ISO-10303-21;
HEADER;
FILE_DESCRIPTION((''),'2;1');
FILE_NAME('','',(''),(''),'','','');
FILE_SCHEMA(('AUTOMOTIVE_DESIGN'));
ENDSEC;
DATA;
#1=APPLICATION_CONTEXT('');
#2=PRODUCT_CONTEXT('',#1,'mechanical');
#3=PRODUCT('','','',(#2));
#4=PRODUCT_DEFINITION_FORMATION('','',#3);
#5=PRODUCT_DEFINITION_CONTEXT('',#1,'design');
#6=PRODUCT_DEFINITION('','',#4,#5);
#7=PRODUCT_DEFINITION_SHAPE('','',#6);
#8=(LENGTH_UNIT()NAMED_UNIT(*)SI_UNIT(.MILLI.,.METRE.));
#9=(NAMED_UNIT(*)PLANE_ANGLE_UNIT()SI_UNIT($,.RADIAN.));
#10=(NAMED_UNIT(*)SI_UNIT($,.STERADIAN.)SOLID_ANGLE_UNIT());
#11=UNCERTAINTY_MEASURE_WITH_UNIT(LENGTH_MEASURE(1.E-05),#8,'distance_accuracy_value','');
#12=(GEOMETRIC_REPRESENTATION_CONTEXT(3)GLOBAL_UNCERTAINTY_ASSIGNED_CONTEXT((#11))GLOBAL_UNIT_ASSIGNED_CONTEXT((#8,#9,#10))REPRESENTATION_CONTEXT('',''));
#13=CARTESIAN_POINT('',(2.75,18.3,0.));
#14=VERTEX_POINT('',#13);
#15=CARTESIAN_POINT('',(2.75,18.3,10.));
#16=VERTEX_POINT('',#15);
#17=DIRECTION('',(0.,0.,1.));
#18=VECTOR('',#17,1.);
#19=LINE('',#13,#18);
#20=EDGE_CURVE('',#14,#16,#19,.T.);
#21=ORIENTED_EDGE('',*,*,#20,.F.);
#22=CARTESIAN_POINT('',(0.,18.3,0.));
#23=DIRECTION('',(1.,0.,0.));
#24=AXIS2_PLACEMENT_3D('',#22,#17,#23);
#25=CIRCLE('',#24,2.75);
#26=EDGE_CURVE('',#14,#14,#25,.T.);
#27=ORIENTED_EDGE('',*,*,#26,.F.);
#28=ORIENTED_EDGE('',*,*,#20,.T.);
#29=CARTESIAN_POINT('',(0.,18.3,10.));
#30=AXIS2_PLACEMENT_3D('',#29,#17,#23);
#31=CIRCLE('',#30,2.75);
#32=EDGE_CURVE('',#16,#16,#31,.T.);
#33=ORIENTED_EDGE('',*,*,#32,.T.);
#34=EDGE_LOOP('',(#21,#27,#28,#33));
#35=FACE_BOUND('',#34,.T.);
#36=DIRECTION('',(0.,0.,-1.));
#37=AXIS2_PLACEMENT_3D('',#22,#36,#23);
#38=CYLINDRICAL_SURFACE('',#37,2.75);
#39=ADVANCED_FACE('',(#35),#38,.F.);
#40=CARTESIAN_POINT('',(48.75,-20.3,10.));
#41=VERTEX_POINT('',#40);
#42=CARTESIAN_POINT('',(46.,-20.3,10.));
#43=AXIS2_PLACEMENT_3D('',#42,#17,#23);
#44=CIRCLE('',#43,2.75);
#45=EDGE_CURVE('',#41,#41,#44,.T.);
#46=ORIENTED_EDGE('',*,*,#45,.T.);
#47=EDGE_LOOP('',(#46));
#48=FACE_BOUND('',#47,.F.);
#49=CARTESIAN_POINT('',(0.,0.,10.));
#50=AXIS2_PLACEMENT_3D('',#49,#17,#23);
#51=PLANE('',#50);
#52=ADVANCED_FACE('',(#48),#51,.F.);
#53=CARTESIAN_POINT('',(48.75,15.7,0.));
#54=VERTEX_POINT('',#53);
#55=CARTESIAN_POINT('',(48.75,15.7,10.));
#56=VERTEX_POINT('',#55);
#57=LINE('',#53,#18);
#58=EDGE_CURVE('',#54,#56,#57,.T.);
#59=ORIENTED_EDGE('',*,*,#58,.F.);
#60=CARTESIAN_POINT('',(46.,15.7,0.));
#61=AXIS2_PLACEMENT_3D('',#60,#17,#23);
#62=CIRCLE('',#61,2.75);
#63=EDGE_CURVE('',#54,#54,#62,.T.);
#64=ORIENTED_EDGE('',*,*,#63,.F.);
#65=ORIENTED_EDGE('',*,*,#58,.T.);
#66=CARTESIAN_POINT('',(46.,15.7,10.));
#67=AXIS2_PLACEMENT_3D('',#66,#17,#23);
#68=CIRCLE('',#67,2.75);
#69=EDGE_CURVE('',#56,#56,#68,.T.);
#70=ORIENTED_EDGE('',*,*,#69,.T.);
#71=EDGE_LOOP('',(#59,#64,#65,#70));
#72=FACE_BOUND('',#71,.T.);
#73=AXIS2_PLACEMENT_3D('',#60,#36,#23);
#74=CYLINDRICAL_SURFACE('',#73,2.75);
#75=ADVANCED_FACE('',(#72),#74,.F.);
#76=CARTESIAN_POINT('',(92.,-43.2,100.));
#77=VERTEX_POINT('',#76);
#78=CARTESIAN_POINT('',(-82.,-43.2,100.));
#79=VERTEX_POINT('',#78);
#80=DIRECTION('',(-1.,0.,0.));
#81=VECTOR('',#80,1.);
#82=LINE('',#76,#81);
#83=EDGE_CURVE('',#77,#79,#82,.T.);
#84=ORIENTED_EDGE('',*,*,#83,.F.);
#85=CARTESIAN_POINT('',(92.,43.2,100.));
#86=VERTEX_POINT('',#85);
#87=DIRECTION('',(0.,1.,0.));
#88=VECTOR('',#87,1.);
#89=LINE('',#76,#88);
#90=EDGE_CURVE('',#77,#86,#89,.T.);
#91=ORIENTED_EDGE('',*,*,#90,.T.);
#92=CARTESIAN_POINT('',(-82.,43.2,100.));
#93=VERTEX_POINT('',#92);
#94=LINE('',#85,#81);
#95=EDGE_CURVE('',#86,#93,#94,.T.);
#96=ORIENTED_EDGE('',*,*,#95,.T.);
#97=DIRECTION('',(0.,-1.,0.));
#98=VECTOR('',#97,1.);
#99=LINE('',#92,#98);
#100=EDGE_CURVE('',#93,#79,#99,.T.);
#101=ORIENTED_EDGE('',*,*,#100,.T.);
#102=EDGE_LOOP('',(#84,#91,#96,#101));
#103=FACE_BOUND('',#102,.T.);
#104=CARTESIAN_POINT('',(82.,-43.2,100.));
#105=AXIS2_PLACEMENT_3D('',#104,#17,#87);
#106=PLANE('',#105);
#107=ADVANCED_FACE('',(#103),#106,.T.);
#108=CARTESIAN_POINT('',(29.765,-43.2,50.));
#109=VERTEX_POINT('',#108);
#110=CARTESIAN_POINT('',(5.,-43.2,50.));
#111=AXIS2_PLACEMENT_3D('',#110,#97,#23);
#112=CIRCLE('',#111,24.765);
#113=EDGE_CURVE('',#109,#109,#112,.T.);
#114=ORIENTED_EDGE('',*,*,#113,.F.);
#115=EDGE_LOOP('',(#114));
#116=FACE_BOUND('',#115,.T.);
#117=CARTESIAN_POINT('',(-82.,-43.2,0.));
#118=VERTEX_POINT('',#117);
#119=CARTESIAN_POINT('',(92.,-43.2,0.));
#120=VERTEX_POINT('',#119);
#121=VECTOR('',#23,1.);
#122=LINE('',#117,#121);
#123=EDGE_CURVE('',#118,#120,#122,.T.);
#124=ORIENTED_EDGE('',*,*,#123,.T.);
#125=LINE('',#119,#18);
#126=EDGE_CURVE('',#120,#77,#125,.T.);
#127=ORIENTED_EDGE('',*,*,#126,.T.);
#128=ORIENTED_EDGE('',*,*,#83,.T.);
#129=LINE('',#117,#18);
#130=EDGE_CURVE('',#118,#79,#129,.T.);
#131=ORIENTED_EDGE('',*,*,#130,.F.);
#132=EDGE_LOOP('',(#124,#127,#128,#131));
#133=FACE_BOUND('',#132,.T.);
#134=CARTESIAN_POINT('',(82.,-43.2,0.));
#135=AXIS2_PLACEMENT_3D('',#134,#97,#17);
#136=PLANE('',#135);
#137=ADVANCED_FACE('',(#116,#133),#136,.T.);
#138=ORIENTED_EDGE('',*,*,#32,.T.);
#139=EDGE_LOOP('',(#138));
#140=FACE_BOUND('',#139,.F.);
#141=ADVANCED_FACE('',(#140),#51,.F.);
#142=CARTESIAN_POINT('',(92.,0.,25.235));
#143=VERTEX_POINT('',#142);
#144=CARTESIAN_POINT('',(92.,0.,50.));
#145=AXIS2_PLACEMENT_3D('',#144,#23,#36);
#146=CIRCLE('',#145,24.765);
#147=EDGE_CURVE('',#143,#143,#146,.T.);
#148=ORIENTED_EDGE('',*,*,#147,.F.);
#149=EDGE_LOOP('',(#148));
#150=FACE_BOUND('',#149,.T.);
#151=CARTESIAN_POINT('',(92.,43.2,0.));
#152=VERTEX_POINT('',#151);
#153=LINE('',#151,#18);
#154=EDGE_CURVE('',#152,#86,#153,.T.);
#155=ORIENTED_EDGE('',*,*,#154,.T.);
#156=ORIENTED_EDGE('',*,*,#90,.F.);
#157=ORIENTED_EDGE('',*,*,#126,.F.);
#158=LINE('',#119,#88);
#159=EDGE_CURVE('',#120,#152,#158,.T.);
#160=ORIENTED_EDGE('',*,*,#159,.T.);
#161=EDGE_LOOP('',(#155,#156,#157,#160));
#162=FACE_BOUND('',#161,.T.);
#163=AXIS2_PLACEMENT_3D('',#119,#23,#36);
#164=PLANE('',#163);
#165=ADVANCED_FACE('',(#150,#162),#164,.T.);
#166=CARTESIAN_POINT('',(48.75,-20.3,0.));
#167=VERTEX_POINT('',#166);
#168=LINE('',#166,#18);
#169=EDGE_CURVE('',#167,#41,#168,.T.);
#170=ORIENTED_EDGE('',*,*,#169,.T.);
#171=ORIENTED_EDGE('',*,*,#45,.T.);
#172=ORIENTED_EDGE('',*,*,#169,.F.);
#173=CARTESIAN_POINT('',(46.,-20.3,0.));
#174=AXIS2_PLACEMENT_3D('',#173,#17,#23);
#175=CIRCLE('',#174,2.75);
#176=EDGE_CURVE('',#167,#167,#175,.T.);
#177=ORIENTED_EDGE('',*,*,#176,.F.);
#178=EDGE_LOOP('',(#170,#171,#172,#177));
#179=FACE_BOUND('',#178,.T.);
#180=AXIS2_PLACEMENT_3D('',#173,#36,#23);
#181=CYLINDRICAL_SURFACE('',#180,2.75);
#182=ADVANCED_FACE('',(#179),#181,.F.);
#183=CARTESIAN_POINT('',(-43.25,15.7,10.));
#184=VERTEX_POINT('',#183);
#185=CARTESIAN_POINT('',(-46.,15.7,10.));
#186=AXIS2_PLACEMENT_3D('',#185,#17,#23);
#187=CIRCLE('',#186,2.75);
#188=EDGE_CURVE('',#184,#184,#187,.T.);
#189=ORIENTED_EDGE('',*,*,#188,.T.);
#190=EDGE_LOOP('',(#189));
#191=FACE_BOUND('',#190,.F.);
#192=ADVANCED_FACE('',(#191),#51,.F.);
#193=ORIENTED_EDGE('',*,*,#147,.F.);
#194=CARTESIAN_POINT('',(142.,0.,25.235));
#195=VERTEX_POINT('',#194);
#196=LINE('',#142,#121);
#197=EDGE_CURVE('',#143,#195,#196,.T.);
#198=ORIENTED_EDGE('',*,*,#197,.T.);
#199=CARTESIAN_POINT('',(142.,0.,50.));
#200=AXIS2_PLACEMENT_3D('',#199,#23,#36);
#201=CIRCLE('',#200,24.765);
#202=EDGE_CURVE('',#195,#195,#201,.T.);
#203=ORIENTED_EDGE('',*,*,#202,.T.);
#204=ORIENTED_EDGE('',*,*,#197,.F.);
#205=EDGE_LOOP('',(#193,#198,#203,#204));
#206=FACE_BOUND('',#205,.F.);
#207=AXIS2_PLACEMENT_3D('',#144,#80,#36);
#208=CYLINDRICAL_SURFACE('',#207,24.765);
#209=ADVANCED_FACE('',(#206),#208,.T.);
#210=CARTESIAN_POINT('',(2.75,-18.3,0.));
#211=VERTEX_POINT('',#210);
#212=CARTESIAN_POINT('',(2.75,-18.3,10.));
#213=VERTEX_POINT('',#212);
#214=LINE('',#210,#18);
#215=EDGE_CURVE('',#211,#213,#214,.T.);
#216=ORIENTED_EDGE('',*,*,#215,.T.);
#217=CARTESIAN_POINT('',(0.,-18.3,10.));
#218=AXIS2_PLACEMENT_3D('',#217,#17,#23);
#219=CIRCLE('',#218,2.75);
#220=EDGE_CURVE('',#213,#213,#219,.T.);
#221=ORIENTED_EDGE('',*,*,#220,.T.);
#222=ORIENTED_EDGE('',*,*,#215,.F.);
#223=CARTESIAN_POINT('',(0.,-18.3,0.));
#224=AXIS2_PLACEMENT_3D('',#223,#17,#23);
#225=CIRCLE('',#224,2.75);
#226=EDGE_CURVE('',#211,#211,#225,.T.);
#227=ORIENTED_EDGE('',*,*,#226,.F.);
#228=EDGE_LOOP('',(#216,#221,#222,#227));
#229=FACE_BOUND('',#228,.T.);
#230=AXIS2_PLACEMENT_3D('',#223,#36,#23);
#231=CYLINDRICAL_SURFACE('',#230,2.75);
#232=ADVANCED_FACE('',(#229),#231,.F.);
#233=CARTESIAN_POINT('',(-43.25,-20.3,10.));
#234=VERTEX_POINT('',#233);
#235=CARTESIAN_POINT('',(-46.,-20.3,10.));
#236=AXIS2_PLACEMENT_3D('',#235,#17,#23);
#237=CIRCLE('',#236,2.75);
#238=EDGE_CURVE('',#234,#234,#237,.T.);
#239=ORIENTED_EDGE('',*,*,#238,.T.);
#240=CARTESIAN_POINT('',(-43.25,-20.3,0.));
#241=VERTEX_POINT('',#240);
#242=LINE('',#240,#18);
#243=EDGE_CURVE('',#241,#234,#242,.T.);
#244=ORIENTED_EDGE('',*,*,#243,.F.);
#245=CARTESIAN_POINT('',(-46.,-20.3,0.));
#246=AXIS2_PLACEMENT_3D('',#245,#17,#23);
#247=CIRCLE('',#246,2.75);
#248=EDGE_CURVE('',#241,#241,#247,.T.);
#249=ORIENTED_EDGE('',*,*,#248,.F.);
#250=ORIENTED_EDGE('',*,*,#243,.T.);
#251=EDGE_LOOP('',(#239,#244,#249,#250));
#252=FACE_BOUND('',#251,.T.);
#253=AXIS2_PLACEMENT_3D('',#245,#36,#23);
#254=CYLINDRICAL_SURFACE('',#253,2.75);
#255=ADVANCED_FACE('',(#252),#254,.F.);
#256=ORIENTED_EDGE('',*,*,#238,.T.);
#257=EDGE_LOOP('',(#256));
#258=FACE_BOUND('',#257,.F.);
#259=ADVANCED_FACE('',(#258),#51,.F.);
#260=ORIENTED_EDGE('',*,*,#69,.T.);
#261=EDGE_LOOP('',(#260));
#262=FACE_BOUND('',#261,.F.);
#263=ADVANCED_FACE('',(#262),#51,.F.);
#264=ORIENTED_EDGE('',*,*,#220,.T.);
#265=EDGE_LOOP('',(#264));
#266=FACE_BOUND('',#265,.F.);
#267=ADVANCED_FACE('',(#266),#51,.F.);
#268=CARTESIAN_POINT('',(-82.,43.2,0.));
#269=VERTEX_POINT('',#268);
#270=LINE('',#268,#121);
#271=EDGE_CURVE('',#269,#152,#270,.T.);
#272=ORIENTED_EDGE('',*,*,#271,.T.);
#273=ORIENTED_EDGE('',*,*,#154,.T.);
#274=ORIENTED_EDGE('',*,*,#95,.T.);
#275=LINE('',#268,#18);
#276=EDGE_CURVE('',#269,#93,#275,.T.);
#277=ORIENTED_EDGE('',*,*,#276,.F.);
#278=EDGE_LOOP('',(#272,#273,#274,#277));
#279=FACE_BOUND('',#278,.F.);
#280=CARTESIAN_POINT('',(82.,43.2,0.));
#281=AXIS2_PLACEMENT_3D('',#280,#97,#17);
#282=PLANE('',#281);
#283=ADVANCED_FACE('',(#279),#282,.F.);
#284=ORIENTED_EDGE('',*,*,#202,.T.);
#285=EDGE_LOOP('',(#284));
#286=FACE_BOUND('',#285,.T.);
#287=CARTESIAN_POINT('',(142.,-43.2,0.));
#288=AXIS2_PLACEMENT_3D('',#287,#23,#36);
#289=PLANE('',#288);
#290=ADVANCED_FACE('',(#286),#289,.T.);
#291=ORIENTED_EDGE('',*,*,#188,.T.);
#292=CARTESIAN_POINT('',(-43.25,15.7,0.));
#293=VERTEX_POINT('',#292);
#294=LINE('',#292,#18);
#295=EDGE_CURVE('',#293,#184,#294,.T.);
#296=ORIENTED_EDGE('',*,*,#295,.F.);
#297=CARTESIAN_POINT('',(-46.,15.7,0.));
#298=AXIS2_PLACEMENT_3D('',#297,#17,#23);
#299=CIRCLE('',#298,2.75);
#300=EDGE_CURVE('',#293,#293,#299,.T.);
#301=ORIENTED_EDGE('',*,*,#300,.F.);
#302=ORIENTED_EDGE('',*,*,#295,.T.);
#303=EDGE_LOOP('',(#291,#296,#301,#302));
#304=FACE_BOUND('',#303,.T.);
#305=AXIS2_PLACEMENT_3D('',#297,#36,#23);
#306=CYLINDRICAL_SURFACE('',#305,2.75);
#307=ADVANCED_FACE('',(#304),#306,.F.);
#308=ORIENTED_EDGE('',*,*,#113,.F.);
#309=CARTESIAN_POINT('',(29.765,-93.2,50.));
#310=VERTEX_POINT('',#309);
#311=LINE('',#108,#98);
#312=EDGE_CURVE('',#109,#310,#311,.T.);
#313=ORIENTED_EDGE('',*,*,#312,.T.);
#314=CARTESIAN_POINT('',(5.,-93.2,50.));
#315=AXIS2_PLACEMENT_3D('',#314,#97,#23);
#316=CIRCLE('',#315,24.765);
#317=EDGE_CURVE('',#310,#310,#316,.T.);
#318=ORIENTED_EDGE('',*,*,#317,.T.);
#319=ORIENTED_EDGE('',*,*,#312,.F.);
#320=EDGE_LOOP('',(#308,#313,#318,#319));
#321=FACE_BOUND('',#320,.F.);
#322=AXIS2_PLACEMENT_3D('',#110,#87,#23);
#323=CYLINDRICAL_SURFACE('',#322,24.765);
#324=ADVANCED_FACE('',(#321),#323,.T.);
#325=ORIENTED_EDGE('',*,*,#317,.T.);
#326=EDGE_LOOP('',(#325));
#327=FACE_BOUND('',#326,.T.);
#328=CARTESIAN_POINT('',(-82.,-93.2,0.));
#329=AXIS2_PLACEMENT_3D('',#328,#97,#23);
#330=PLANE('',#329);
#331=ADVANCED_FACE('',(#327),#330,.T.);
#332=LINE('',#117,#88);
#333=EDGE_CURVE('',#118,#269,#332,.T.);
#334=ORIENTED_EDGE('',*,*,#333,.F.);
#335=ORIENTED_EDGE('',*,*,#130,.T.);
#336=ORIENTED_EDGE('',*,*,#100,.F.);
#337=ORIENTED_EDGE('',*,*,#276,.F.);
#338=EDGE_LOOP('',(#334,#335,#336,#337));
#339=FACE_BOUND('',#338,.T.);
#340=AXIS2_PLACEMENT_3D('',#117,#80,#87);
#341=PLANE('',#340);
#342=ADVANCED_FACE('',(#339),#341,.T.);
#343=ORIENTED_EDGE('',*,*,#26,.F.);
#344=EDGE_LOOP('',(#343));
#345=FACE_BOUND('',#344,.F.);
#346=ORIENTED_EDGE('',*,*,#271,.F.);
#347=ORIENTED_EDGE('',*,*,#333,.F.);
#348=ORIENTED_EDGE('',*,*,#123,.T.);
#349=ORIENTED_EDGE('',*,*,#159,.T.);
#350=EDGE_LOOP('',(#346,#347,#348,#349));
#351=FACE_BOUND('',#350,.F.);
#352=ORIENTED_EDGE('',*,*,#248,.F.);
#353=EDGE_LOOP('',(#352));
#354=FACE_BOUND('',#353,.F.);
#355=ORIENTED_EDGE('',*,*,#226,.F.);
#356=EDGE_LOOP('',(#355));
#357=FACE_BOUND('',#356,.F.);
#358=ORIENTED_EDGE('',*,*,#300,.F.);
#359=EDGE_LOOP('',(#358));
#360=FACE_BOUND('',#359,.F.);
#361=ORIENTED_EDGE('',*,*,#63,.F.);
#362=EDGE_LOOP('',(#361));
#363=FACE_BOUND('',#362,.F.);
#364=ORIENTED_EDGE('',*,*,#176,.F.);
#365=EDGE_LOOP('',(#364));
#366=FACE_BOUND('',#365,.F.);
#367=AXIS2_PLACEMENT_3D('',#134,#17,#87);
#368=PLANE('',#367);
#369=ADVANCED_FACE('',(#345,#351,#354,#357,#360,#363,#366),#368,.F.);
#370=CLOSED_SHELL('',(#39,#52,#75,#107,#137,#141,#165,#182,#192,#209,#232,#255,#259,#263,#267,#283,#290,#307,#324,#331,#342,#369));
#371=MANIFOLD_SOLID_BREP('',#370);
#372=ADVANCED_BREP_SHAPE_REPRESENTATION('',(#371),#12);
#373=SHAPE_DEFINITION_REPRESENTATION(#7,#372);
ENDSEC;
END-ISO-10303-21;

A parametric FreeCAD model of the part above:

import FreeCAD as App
import Part
import Sketcher

V = App.Vector
Q = App.Units.Quantity

doc = App.newDocument("Part")
body = doc.addObject("PartDesign::Body", "Body")

# Sketch on XY plane
sketch1 = body.newObject("Sketcher::SketchObject", "Sketch")
sketch1.AttachmentSupport = (doc.getObject("XY_Plane"), [""])
sketch1.MapMode = "FlatFace"
sketch1.addGeometry(Part.LineSegment(V(82, 43.2, 0), V(-82, 43.2, 0)), False)
sketch1.addGeometry(Part.LineSegment(V(-82, 43.2, 0), V(-82, -43.2, 0)), False)
sketch1.addGeometry(Part.LineSegment(V(-82, -43.2, 0), V(82, -43.2, 0)), False)
sketch1.addGeometry(Part.LineSegment(V(82, -43.2, 0), V(82, 43.2, 0)), False)
sketch1.addGeometry(Part.Circle(V(-46, -20.3, 0), V(0, 0, 1), 2.8), False)
sketch1.addGeometry(Part.Circle(V(0, -18.3, 0), V(0, 0, 1), 2.8), False)
sketch1.addGeometry(Part.Circle(V(46, -20.3, 0), V(0, 0, 1), 2.8), False)
sketch1.addGeometry(Part.Circle(V(-46, 15.7, 0), V(0, 0, 1), 2.8), False)
sketch1.addGeometry(Part.Circle(V(0, 18.3, 0), V(0, 0, 1), 2.8), False)
sketch1.addGeometry(Part.Circle(V(46, 15.7, 0), V(0, 0, 1), 2.8), False)
sketch1.addConstraint(Sketcher.Constraint("Coincident", 0, 2, 1, 1))
sketch1.addConstraint(Sketcher.Constraint("Coincident", 1, 2, 2, 1))
sketch1.addConstraint(Sketcher.Constraint("Coincident", 2, 2, 3, 1))
sketch1.addConstraint(Sketcher.Constraint("Coincident", 3, 2, 0, 1))
sketch1.addConstraint(Sketcher.Constraint("Horizontal", 0))
sketch1.addConstraint(Sketcher.Constraint("Vertical", 1))
sketch1.addConstraint(Sketcher.Constraint("Horizontal", 2))
sketch1.addConstraint(Sketcher.Constraint("Vertical", 3))
sketch1.addConstraint(Sketcher.Constraint("Equal", 4, 5))
sketch1.addConstraint(Sketcher.Constraint("Equal", 5, 6))
sketch1.addConstraint(Sketcher.Constraint("Equal", 6, 7))
sketch1.addConstraint(Sketcher.Constraint("Equal", 7, 8))
sketch1.addConstraint(Sketcher.Constraint("Equal", 8, 9))
sketch1.addConstraint(Sketcher.Constraint("Symmetric", 5, 3, 8, 3, -1, 1))
sketch1.addConstraint(Sketcher.Constraint("Symmetric", 0, 2, 2, 2, -1, 1))
sketch1.addConstraint(Sketcher.Constraint("Symmetric", 4, 3, 6, 3, -2))
sketch1.addConstraint(Sketcher.Constraint("Symmetric", 7, 3, 9, 3, -2))
sketch1.addConstraint(Sketcher.Constraint("PointOnObject", 5, 3, -2))
sketch1.addConstraint(Sketcher.Constraint("Vertical", 4, 3, 7, 3))
sketch1.addConstraint(Sketcher.Constraint("Diameter", 4, Q("5.5 mm")))
sketch1.addConstraint(Sketcher.Constraint("DistanceX", 4, 3, -1, 1, Q("46 mm")))
sketch1.addConstraint(Sketcher.Constraint("DistanceY", 4, 3, 7, 3, Q("36 mm")))
sketch1.addConstraint(Sketcher.Constraint("DistanceX", 0, 2, 7, 3, Q("36 mm")))
sketch1.addConstraint(Sketcher.Constraint("DistanceY", -1, 1, 0, 2, Q("43.2 mm")))
sketch1.addConstraint(Sketcher.Constraint("DistanceY", 5, 3, 8, 3, Q("36.6 mm")))
sketch1.addConstraint(Sketcher.Constraint("DistanceY", 4, 3, 5, 3, Q("2 mm")))
pad1 = body.newObject("PartDesign::Pad", "Pad")
pad1.Profile = sketch1
pad1.Length = 10

# Sketch on XY plane
sketch2 = body.newObject("Sketcher::SketchObject", "Sketch001")
sketch2.AttachmentSupport = (doc.getObject("XY_Plane"), [""])
sketch2.MapMode = "FlatFace"
sketch2.AttachmentOffset = App.Placement(V(0, 0, 10), App.Rotation())
sketch2.addGeometry(Part.LineSegment(V(82, 43, 0), V(-82, 43, 0)), False)
sketch2.addGeometry(Part.LineSegment(V(-82, 43, 0), V(-82, -43, 0)), False)
sketch2.addGeometry(Part.LineSegment(V(-82, -43, 0), V(82, -43, 0)), False)
sketch2.addGeometry(Part.LineSegment(V(82, -43, 0), V(82, 43, 0)), False)
sketch2.addConstraint(Sketcher.Constraint("Coincident", 0, 2, 1, 1))
sketch2.addConstraint(Sketcher.Constraint("Coincident", 1, 2, 2, 1))
sketch2.addConstraint(Sketcher.Constraint("Coincident", 2, 2, 3, 1))
sketch2.addConstraint(Sketcher.Constraint("Coincident", 3, 2, 0, 1))
sketch2.addConstraint(Sketcher.Constraint("Horizontal", 0))
sketch2.addConstraint(Sketcher.Constraint("Vertical", 1))
sketch2.addConstraint(Sketcher.Constraint("Horizontal", 2))
sketch2.addConstraint(Sketcher.Constraint("Vertical", 3))
sketch2.addConstraint(Sketcher.Constraint("Symmetric", 0, 2, 2, 2, -1, 1))
sketch2.addConstraint(Sketcher.Constraint("DistanceX", 0, 2, 0, 1, Q("164 mm")))
sketch2.addConstraint(Sketcher.Constraint("DistanceY", 1, 2, 1, 1, Q("86.4 mm")))
pad2 = body.newObject("PartDesign::Pad", "Pad001")
pad2.Profile = sketch2
pad2.Length = 90

# Sketch on YZ plane
sketch3 = body.newObject("Sketcher::SketchObject", "Sketch002")
sketch3.AttachmentSupport = (doc.getObject("YZ_Plane"), [""])
sketch3.MapMode = "FlatFace"
sketch3.AttachmentOffset = App.Placement(V(0, 0, 82), App.Rotation())
sketch3.addGeometry(Part.LineSegment(V(-43, 100, 0), V(-43, 0, 0)), False)
sketch3.addGeometry(Part.LineSegment(V(-43, 0, 0), V(43, 0, 0)), False)
sketch3.addGeometry(Part.LineSegment(V(43, 0, 0), V(43, 100, 0)), False)
sketch3.addGeometry(Part.LineSegment(V(43, 100, 0), V(-43, 100, 0)), False)
sketch3.addConstraint(Sketcher.Constraint("Coincident", 0, 2, 1, 1))
sketch3.addConstraint(Sketcher.Constraint("Coincident", 1, 2, 2, 1))
sketch3.addConstraint(Sketcher.Constraint("Coincident", 2, 2, 3, 1))
sketch3.addConstraint(Sketcher.Constraint("Coincident", 3, 2, 0, 1))
sketch3.addConstraint(Sketcher.Constraint("Vertical", 0))
sketch3.addConstraint(Sketcher.Constraint("Horizontal", 1))
sketch3.addConstraint(Sketcher.Constraint("Vertical", 2))
sketch3.addConstraint(Sketcher.Constraint("Horizontal", 3))
sketch3.addConstraint(Sketcher.Constraint("Symmetric", 0, 2, 1, 2, -1, 1))
sketch3.addConstraint(Sketcher.Constraint("DistanceY", 0, 2, 0, 1, Q("100 mm")))
sketch3.addConstraint(Sketcher.Constraint("DistanceX", 1, 1, 1, 2, Q("86.4 mm")))
pad3 = body.newObject("PartDesign::Pad", "Pad002")
pad3.Profile = sketch3
pad3.Length = 10

# Sketch on YZ plane
sketch4 = body.newObject("Sketcher::SketchObject", "Sketch003")
sketch4.AttachmentSupport = (doc.getObject("YZ_Plane"), [""])
sketch4.MapMode = "FlatFace"
sketch4.AttachmentOffset = App.Placement(V(0, 0, 92), App.Rotation())
sketch4.addGeometry(Part.Circle(V(0, 50, 0), V(0, 0, 1), 25), False)
sketch4.addConstraint(Sketcher.Constraint("PointOnObject", 0, 3, -2))
sketch4.addConstraint(Sketcher.Constraint("Diameter", 0, Q("49.53 mm")))
sketch4.addConstraint(Sketcher.Constraint("DistanceY", -1, 1, 0, 3, Q("50 mm")))
pad4 = body.newObject("PartDesign::Pad", "Pad003")
pad4.Profile = sketch4
pad4.Length = 50

# Sketch on XZ plane
sketch5 = body.newObject("Sketcher::SketchObject", "Sketch004")
sketch5.AttachmentSupport = (doc.getObject("XZ_Plane"), [""])
sketch5.MapMode = "FlatFace"
sketch5.AttachmentOffset = App.Placement(V(0, 0, 43.2), App.Rotation())
sketch5.addGeometry(Part.Circle(V(5, 50, 0), V(0, 0, 1), 25), False)
sketch5.addConstraint(Sketcher.Constraint("Diameter", 0, Q("49.53 mm")))
sketch5.addConstraint(Sketcher.Constraint("DistanceX", -1, 1, 0, 3, Q("5 mm")))
sketch5.addConstraint(Sketcher.Constraint("DistanceY", -1, 1, 0, 3, Q("50 mm")))
pad5 = body.newObject("PartDesign::Pad", "Pad004")
pad5.Profile = sketch5
pad5.Length = 50

doc.recompute()
